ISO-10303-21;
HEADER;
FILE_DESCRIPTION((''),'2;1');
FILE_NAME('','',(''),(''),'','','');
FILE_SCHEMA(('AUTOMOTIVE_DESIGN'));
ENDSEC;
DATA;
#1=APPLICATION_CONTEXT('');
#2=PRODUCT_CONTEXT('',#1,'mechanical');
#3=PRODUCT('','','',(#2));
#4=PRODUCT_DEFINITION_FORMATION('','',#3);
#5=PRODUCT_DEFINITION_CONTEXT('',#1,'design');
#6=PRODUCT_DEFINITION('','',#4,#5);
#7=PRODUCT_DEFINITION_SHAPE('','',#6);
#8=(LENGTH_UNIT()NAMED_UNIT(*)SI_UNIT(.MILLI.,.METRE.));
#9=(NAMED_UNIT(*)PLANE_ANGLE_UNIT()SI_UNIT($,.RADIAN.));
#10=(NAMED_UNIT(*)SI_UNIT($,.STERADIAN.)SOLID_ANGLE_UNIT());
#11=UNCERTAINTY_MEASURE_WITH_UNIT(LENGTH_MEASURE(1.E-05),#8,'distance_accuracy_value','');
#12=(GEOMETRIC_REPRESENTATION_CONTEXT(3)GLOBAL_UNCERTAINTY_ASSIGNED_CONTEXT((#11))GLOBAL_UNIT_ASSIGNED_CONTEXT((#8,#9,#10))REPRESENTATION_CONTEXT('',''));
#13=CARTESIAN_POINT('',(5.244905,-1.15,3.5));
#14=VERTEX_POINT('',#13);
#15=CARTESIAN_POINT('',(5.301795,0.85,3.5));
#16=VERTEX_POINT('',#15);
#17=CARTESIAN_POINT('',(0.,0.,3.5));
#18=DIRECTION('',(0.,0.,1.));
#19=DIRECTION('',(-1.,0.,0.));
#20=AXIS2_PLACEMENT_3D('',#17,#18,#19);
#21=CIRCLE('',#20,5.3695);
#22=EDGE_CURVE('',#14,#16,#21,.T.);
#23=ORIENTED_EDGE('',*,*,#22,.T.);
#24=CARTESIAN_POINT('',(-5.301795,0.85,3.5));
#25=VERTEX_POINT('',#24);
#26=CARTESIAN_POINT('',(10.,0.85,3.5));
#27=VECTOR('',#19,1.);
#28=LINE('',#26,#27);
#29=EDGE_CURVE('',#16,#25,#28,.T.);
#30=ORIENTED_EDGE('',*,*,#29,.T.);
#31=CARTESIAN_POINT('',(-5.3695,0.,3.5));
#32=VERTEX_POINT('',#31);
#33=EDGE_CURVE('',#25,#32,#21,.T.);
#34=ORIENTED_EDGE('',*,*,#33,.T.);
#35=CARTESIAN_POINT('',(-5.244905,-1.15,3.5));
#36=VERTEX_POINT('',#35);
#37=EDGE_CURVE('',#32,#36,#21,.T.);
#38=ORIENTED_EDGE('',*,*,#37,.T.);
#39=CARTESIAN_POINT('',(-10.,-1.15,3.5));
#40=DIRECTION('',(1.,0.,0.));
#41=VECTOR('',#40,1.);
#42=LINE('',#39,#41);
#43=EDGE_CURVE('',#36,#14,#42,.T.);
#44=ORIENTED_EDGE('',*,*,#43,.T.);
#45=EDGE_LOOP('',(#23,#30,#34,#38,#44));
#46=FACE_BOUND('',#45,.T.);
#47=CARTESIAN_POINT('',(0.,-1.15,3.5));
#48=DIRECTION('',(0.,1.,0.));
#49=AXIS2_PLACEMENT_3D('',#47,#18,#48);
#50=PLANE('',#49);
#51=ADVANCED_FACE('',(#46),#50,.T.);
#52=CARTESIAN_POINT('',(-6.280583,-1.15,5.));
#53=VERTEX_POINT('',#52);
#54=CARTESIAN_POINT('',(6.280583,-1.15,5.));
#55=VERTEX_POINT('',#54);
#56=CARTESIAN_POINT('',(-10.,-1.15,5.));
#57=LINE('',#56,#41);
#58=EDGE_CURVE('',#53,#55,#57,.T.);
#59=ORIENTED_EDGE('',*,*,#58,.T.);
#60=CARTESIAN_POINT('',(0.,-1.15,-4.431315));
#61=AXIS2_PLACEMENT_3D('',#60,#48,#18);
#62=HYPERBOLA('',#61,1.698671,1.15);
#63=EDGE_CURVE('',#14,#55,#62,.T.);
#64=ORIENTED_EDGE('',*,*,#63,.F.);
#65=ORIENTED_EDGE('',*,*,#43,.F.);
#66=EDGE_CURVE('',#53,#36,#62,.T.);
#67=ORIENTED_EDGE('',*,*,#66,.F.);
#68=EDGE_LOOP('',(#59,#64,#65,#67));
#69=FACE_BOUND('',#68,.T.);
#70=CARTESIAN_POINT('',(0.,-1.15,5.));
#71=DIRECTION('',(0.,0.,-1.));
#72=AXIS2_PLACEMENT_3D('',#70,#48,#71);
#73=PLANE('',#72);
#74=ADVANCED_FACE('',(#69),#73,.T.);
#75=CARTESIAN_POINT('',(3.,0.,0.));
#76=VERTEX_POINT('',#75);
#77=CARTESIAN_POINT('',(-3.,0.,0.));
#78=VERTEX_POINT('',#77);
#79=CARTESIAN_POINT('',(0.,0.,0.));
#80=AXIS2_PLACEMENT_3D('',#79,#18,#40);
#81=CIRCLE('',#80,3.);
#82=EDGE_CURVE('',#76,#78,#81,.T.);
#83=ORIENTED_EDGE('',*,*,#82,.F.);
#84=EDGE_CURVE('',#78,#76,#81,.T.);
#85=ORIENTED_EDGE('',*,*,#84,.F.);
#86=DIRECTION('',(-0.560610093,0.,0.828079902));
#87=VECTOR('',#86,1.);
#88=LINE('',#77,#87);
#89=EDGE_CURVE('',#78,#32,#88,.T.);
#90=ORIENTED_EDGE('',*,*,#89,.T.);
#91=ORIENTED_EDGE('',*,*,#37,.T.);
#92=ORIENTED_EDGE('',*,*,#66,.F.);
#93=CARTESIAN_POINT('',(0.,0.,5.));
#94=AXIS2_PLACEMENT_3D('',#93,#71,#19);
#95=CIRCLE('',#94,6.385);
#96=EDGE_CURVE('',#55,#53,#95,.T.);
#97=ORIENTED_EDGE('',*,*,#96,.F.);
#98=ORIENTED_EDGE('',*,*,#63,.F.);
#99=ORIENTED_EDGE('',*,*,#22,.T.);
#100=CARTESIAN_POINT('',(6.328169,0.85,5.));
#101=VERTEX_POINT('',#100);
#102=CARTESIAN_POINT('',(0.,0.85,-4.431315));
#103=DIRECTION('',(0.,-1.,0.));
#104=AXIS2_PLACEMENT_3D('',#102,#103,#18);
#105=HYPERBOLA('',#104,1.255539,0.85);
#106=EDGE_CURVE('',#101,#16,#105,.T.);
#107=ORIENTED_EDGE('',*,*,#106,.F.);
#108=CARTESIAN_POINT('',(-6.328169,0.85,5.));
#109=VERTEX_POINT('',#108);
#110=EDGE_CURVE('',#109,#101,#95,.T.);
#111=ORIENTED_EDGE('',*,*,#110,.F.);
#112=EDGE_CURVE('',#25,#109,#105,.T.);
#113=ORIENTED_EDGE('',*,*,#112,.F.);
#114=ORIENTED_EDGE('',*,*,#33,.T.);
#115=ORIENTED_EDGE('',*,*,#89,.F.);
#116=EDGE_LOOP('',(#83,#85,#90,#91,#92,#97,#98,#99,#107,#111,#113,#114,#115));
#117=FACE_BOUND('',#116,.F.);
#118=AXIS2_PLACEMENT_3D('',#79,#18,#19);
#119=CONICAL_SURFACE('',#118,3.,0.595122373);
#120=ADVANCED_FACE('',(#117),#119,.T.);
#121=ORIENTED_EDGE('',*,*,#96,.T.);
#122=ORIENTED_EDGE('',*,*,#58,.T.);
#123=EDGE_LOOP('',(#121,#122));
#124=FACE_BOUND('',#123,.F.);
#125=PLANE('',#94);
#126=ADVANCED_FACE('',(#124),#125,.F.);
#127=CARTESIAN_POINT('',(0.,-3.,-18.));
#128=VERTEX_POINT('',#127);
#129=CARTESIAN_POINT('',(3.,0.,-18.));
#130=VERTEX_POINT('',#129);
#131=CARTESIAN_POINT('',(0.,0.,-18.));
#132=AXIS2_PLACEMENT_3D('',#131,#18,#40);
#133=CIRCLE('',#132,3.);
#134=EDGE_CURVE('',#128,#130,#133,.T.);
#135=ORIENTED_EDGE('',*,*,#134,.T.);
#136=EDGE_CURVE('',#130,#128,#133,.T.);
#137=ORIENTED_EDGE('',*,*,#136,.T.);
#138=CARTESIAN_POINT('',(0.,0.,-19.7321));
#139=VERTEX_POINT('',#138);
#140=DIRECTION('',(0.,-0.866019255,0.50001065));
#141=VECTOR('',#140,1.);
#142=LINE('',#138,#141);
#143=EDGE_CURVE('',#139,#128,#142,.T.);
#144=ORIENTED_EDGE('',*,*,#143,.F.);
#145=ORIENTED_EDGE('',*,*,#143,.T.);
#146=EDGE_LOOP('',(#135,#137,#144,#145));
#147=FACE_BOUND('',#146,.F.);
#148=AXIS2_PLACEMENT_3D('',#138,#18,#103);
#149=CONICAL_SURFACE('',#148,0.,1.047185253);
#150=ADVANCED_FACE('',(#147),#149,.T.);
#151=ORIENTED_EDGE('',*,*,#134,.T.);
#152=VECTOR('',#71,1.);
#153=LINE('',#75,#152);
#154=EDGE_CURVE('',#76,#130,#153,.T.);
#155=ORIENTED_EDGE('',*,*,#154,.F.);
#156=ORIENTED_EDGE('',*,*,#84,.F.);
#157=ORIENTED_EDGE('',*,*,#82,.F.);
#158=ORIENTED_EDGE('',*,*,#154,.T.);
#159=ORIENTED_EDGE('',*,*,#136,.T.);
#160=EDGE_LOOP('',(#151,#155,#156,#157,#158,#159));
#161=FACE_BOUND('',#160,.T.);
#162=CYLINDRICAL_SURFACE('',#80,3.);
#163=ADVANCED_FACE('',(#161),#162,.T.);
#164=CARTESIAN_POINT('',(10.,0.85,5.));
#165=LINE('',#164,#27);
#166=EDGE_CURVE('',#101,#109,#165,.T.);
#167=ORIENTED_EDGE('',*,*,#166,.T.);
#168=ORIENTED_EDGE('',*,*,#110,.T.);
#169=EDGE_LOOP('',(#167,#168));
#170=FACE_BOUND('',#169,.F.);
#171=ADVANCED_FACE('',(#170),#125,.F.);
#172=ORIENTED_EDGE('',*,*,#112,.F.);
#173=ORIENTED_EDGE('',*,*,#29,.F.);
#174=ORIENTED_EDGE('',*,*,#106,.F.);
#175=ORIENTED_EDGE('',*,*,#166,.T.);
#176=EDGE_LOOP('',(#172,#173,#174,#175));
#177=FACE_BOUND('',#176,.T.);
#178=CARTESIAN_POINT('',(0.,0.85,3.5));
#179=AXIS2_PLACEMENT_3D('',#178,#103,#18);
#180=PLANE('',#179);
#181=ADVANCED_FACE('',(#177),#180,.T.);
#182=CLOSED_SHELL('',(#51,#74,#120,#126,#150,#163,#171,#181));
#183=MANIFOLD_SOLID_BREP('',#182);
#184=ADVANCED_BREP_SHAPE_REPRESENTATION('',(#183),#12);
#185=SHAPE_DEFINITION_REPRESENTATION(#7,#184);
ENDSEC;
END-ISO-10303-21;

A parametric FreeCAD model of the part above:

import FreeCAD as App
import Part
import Sketcher
Q = App.Units.Quantity

doc = App.newDocument("Part")
body = doc.addObject("PartDesign::Body", "Body")

# Sketch on XY plane
sketch1 = body.newObject("Sketcher::SketchObject", "Sketch")
sketch1.AttachmentSupport = (doc.getObject("XY_Plane"), [""])
sketch1.MapMode = "FlatFace"
sketch1.addGeometry(Part.Circle(App.Vector(0, 0, 0), App.Vector(0, 0, 1), 3), False)
sketch1.addConstraint(Sketcher.Constraint("Coincident", 0, 3, -1, 1))
sketch1.addConstraint(Sketcher.Constraint("Diameter", 0, Q("6 mm")))
pad1 = body.newObject("PartDesign::Pad", "Pad")
pad1.Profile = sketch1
pad1.Length = 18
pad1.Reversed = True

# Sketch on YZ plane
sketch2 = body.newObject("Sketcher::SketchObject", "Sketch001")
sketch2.AttachmentSupport = (doc.getObject("YZ_Plane"), [""])
sketch2.MapMode = "FlatFace"
sketch2.addGeometry(Part.LineSegment(App.Vector(3, -18, 0), App.Vector(0, -18, 0)), False)
sketch2.addGeometry(Part.LineSegment(App.Vector(0, -18, 0), App.Vector(0, -19.7, 0)), False)
sketch2.addGeometry(Part.LineSegment(App.Vector(0, -19.7, 0), App.Vector(3, -18, 0)), False)
sketch2.addConstraint(Sketcher.Constraint("Coincident", 0, 2, 1, 1))
sketch2.addConstraint(Sketcher.Constraint("Coincident", 1, 2, 2, 1))
sketch2.addConstraint(Sketcher.Constraint("Coincident", 2, 2, 0, 1))
sketch2.addConstraint(Sketcher.Constraint("Horizontal", 0))
sketch2.addConstraint(Sketcher.Constraint("Vertical", 1))
sketch2.addConstraint(Sketcher.Constraint("PointOnObject", 0, 2, -2))
sketch2.addConstraint(Sketcher.Constraint("DistanceX", 0, 2, 0, 1, Q("3 mm")))
sketch2.addConstraint(Sketcher.Constraint("Angle", 2, Q("30.0007 deg")))
sketch2.addConstraint(Sketcher.Constraint("DistanceY", 0, 2, -1, 1, Q("18 mm")))
revolution = body.newObject("PartDesign::Revolution", "Revolution")
revolution.Profile = sketch2
revolution.ReferenceAxis = (sketch2, ["V_Axis"])
revolution.Angle = 360

# Sketch on XZ plane
sketch3 = body.newObject("Sketcher::SketchObject", "Sketch002")
sketch3.AttachmentSupport = (doc.getObject("XZ_Plane"), [""])
sketch3.MapMode = "FlatFace"
sketch3.addGeometry(Part.LineSegment(App.Vector(0, 0, 0), App.Vector(-3, 0, 0)), False)
sketch3.addGeometry(Part.LineSegment(App.Vector(-3, 0, 0), App.Vector(-6.4, 5, 0)), False)
sketch3.addGeometry(Part.LineSegment(App.Vector(-6.4, 5, 0), App.Vector(0, 5, 0)), False)
sketch3.addGeometry(Part.LineSegment(App.Vector(0, 5, 0), App.Vector(0, 0, 0)), False)
sketch3.addConstraint(Sketcher.Constraint("Coincident", 0, 2, 1, 1))
sketch3.addConstraint(Sketcher.Constraint("Coincident", 1, 2, 2, 1))
sketch3.addConstraint(Sketcher.Constraint("Coincident", 2, 2, 3, 1))
sketch3.addConstraint(Sketcher.Constraint("Coincident", 3, 2, 0, 1))
sketch3.addConstraint(Sketcher.Constraint("Horizontal", 0))
sketch3.addConstraint(Sketcher.Constraint("Horizontal", 2))
sketch3.addConstraint(Sketcher.Constraint("Vertical", 3))
sketch3.addConstraint(Sketcher.Constraint("Coincident", 3, 2, -1, 1))
sketch3.addConstraint(Sketcher.Constraint("DistanceY", 3, 2, 3, 1, Q("5 mm")))
sketch3.addConstraint(Sketcher.Constraint("DistanceX", 0, 2, 0, 1, Q("3 mm")))
sketch3.addConstraint(Sketcher.Constraint("DistanceX", 2, 1, 2, 2, Q("6.385 mm")))
revolution2 = body.newObject("PartDesign::Revolution", "Revolution001")
revolution2.Profile = sketch3
revolution2.ReferenceAxis = (sketch3, ["V_Axis"])
revolution2.Angle = 360

# Sketch on YZ plane
sketch4 = body.newObject("Sketcher::SketchObject", "Sketch003")
sketch4.AttachmentSupport = (doc.getObject("YZ_Plane"), [""])
sketch4.MapMode = "FlatFace"
sketch4.addGeometry(Part.LineSegment(App.Vector(0.8, 5, 0), App.Vector(-1.1, 5, 0)), False)
sketch4.addGeometry(Part.LineSegment(App.Vector(-1.1, 5, 0), App.Vector(-1.1, 3.5, 0)), False)
sketch4.addGeometry(Part.LineSegment(App.Vector(-1.1, 3.5, 0), App.Vector(0.8, 3.5, 0)), False)
sketch4.addGeometry(Part.LineSegment(App.Vector(0.8, 3.5, 0), App.Vector(0.8, 5, 0)), False)
sketch4.addConstraint(Sketcher.Constraint("Coincident", 0, 2, 1, 1))
sketch4.addConstraint(Sketcher.Constraint("Coincident", 1, 2, 2, 1))
sketch4.addConstraint(Sketcher.Constraint("Coincident", 2, 2, 3, 1))
sketch4.addConstraint(Sketcher.Constraint("Coincident", 3, 2, 0, 1))
sketch4.addConstraint(Sketcher.Constraint("Horizontal", 0))
sketch4.addConstraint(Sketcher.Constraint("Vertical", 1))
sketch4.addConstraint(Sketcher.Constraint("Horizontal", 2))
sketch4.addConstraint(Sketcher.Constraint("Vertical", 3))
sketch4.addConstraint(Sketcher.Constraint("DistanceY", 1, 2, 1, 1, Q("1.5 mm")))
sketch4.addConstraint(Sketcher.Constraint("DistanceX", 0, 2, 0, 1, Q("2 mm")))
sketch4.addConstraint(Sketcher.Constraint("DistanceY", -1, 1, 0, 2, Q("5 mm")))
sketch4.addConstraint(Sketcher.Constraint("DistanceX", 0, 2, -1, 1, Q("1.15 mm")))
pocket1 = body.newObject("PartDesign::Pocket", "Pocket")
pocket1.Profile = sketch4
pocket1.Length = 20
pocket1.Midplane = True

doc.recompute()
